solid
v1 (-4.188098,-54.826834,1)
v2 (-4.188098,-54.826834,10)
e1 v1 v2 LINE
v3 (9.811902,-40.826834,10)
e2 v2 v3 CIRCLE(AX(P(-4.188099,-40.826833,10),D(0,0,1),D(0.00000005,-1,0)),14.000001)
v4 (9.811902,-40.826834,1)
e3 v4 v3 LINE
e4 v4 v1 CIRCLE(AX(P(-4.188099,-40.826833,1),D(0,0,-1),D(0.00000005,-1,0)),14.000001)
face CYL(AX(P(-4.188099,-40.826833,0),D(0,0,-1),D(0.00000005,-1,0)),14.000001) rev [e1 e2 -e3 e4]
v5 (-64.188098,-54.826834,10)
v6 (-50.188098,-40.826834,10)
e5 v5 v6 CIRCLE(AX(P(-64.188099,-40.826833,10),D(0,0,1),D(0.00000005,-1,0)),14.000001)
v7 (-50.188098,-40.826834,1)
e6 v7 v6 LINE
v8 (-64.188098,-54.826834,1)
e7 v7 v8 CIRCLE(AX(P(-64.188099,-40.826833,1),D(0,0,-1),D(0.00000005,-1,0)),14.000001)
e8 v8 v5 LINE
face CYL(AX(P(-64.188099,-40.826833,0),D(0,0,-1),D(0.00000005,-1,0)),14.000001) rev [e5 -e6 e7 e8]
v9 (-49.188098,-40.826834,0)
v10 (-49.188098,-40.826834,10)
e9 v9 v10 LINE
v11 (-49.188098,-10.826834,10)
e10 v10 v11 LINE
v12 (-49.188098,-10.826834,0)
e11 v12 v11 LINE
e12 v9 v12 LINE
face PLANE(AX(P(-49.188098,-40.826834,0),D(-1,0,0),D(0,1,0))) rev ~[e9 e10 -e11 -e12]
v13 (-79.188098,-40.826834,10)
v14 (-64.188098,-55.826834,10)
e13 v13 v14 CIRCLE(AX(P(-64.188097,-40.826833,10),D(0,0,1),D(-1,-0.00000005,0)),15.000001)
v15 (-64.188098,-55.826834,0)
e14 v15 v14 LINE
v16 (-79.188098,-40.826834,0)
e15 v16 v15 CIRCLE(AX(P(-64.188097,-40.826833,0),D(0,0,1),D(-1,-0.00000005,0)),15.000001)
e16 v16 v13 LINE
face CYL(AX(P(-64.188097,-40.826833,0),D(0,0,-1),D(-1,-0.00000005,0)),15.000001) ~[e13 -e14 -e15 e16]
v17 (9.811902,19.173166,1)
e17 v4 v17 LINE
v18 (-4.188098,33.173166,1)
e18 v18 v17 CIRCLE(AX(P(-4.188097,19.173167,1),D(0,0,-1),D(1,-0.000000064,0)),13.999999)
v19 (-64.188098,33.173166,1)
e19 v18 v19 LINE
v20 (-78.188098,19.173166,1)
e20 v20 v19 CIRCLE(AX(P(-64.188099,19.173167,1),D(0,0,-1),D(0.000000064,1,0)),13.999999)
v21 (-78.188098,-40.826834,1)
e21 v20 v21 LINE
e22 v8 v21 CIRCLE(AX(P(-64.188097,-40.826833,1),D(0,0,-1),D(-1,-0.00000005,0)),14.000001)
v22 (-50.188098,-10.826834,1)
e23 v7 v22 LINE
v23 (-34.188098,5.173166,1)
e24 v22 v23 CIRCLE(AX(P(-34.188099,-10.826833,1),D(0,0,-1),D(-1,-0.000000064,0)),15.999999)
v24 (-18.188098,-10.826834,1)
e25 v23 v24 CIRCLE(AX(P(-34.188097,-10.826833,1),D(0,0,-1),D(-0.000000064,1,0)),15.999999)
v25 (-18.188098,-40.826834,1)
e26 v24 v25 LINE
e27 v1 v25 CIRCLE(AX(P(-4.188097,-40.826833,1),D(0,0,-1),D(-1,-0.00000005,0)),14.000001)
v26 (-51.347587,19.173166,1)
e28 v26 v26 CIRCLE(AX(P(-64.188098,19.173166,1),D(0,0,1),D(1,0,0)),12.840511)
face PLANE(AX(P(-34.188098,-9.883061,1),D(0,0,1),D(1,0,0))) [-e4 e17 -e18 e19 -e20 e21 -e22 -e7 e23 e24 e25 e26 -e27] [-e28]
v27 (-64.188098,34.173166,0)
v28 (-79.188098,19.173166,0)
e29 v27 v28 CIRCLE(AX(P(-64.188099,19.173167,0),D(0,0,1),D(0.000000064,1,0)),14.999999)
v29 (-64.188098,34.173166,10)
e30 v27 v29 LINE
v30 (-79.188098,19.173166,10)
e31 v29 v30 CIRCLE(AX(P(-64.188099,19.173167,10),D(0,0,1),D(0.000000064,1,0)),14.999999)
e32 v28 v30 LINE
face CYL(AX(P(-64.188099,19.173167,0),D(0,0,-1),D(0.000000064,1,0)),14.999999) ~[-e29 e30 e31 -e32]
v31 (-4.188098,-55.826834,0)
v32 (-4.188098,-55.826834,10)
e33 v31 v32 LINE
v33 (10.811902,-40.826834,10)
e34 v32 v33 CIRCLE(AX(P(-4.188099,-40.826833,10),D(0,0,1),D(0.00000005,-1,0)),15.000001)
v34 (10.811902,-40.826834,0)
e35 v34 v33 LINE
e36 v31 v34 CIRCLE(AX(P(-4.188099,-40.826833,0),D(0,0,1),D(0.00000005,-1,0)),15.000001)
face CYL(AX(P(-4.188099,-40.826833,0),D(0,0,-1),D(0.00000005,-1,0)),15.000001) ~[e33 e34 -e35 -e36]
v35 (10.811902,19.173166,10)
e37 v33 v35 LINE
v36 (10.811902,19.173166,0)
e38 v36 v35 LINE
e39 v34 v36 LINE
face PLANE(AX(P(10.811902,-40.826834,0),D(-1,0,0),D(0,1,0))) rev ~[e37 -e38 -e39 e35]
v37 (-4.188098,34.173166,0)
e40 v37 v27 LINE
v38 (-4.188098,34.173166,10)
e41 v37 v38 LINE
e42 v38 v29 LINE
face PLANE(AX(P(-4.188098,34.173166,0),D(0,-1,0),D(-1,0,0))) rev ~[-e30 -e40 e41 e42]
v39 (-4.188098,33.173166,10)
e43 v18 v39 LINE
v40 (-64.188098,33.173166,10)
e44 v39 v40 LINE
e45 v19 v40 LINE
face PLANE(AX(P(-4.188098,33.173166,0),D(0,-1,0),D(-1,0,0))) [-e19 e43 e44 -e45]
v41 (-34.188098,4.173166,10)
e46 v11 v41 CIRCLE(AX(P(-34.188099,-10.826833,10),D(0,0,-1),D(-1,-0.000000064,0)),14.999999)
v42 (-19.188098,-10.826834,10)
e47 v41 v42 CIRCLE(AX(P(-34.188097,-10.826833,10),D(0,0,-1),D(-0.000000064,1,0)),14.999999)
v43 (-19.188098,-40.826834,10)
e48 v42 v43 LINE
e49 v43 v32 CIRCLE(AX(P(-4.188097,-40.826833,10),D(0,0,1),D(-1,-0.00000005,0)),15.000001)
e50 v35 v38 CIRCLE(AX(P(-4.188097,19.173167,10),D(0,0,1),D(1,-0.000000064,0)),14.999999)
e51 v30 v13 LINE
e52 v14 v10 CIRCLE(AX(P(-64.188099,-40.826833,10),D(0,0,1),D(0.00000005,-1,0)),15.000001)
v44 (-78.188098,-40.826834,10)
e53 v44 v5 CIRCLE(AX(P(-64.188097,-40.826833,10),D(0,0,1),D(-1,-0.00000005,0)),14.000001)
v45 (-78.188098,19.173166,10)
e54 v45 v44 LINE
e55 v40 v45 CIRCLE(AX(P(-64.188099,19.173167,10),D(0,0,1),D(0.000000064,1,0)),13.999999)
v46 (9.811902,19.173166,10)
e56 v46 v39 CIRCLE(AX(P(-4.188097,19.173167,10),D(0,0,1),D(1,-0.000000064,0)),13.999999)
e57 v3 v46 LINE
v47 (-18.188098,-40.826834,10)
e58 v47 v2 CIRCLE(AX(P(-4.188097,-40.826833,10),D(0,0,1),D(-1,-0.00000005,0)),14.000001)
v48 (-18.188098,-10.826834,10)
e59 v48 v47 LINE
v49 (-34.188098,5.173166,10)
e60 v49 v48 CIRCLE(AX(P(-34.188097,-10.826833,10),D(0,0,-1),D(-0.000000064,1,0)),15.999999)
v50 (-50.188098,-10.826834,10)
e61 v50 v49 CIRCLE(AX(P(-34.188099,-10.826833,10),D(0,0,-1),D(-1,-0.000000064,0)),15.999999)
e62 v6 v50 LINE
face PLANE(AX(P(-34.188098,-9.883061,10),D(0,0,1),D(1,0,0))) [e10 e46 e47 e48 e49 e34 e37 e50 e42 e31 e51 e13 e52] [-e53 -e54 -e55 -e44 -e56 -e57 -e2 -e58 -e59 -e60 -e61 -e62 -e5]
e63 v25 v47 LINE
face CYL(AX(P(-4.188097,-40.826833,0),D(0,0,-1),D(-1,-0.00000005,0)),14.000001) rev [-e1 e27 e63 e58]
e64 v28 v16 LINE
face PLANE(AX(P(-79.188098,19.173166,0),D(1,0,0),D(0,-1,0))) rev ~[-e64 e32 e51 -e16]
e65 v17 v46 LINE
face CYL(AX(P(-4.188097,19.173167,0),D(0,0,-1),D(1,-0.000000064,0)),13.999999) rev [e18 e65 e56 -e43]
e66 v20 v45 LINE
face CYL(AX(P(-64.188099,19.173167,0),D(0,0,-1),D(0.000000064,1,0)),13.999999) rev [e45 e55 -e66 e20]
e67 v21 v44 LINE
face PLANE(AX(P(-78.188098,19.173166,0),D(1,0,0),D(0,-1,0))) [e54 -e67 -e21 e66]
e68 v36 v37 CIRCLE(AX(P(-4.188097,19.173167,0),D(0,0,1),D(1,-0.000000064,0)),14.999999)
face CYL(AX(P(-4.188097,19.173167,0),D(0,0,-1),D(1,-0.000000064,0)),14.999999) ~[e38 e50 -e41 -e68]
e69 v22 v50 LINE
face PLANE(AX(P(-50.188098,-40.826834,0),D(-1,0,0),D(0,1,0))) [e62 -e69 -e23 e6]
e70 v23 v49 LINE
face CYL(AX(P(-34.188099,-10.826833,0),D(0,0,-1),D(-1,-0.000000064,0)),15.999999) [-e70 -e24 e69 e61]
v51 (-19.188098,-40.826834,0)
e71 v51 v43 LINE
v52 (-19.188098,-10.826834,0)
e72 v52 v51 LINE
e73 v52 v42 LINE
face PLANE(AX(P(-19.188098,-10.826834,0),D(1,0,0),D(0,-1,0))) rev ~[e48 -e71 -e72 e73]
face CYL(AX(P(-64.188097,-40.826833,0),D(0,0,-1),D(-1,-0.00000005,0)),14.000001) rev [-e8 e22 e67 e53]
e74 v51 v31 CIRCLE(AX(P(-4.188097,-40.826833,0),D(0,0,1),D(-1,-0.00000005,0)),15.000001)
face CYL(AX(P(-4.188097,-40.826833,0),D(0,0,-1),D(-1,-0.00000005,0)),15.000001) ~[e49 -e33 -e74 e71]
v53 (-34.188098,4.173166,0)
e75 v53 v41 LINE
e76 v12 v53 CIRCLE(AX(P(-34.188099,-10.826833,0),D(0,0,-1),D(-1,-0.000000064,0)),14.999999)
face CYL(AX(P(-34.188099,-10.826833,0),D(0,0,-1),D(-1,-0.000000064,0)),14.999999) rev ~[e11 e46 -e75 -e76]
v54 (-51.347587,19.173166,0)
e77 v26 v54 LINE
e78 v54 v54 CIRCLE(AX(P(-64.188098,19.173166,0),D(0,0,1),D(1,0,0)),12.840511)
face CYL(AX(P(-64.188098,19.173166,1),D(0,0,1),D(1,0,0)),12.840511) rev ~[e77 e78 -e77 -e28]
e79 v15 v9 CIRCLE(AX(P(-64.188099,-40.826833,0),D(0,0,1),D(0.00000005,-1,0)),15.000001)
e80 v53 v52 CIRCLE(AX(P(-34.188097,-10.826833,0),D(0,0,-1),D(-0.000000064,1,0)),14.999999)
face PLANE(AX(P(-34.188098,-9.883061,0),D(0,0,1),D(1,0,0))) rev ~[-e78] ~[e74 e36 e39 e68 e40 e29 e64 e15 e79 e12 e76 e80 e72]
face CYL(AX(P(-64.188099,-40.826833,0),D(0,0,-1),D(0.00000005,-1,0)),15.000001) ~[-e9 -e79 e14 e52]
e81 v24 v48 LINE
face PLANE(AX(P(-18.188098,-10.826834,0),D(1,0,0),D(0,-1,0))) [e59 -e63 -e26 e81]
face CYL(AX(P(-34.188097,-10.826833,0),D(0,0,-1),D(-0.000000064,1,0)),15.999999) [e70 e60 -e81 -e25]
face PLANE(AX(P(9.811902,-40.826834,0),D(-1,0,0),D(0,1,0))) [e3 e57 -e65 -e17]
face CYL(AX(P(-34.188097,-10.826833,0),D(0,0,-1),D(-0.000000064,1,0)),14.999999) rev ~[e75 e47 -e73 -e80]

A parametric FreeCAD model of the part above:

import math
import FreeCAD as App
import Part
import Sketcher

V = App.Vector


def faces_at(feature, points):
    """Names of the faces that lie closest to the given points."""
    faces = feature.Shape.Faces
    near = lambda p: min(range(len(faces)), key=lambda i: faces[i].distToShape(Part.Vertex(*p))[0])
    return sorted({f"Face{near(p) + 1}" for p in points})

doc = App.newDocument("Part")
body = doc.addObject("PartDesign::Body", "Body")

# Sketch on XY plane
sketch1 = doc.addObject("Sketcher::SketchObject", "Sketch")
body.addObject(sketch1)
sketch1.AttachmentSupport = (doc.XY_Plane, [""])
sketch1.MapMode = "FlatFace"
sketch1.addGeometry(Part.LineSegment(V(-4, 34, 0), V(-64, 34, 0)), False)
sketch1.addGeometry(Part.ArcOfCircle(Part.Circle(V(-64, 19, 0), V(0, 0, 1), 15), math.radians(90), math.radians(180)), False)
sketch1.addGeometry(Part.LineSegment(V(-79, 19, 0), V(-79, -41, 0)), False)
sketch1.addGeometry(Part.ArcOfCircle(Part.Circle(V(-64, -41, 0), V(0, 0, 1), 15), math.radians(-180), math.radians(-90)), False)
sketch1.addGeometry(Part.ArcOfCircle(Part.Circle(V(-64, -41, 0), V(0, 0, 1), 15), math.radians(-90), math.radians(0)), False)
sketch1.addGeometry(Part.LineSegment(V(-49, -41, 0), V(-49, -11, 0)), False)
sketch1.addGeometry(Part.ArcOfCircle(Part.Circle(V(-34, -11, 0), V(0, 0, 1), 15), math.radians(90), math.radians(180)), False)
sketch1.addGeometry(Part.ArcOfCircle(Part.Circle(V(-34, -11, 0), V(0, 0, 1), 15), math.radians(0), math.radians(90)), False)
sketch1.addGeometry(Part.LineSegment(V(-19, -11, 0), V(-19, -41, 0)), False)
sketch1.addGeometry(Part.ArcOfCircle(Part.Circle(V(-4, -41, 0), V(0, 0, 1), 15), math.radians(-180), math.radians(-90)), False)
sketch1.addGeometry(Part.ArcOfCircle(Part.Circle(V(-4, -41, 0), V(0, 0, 1), 15), math.radians(-90), math.radians(0)), False)
sketch1.addGeometry(Part.LineSegment(V(11, -41, 0), V(11, 19, 0)), False)
sketch1.addGeometry(Part.ArcOfCircle(Part.Circle(V(-4, 19, 0), V(0, 0, 1), 15), math.radians(0), math.radians(90)), False)
sketch1.addConstraint(Sketcher.Constraint("Tangent", 0, 2, 1, 1))
sketch1.addConstraint(Sketcher.Constraint("Tangent", 1, 2, 2, 1))
sketch1.addConstraint(Sketcher.Constraint("Tangent", 2, 2, 3, 1))
sketch1.addConstraint(Sketcher.Constraint("Tangent", 3, 2, 4, 1))
sketch1.addConstraint(Sketcher.Constraint("Tangent", 4, 2, 5, 1))
sketch1.addConstraint(Sketcher.Constraint("Tangent", 5, 2, 6, 2))
sketch1.addConstraint(Sketcher.Constraint("Tangent", 6, 1, 7, 2))
sketch1.addConstraint(Sketcher.Constraint("Tangent", 7, 1, 8, 1))
sketch1.addConstraint(Sketcher.Constraint("Tangent", 8, 2, 9, 1))
sketch1.addConstraint(Sketcher.Constraint("Tangent", 9, 2, 10, 1))
sketch1.addConstraint(Sketcher.Constraint("Tangent", 10, 2, 11, 1))
sketch1.addConstraint(Sketcher.Constraint("Tangent", 11, 2, 12, 1))
sketch1.addConstraint(Sketcher.Constraint("Tangent", 12, 2, 0, 1))
sketch1.addConstraint(Sketcher.Constraint("Horizontal", 0))
sketch1.addConstraint(Sketcher.Constraint("Vertical", 2))
sketch1.addConstraint(Sketcher.Constraint("Vertical", 5))
sketch1.addConstraint(Sketcher.Constraint("Vertical", 8))
sketch1.addConstraint(Sketcher.Constraint("Vertical", 11))
sketch1.addConstraint(Sketcher.Constraint("Equal", 1, 3))
sketch1.addConstraint(Sketcher.Constraint("Equal", 3, 4))
sketch1.addConstraint(Sketcher.Constraint("Equal", 4, 6))
sketch1.addConstraint(Sketcher.Constraint("Equal", 6, 7))
sketch1.addConstraint(Sketcher.Constraint("Equal", 7, 9))
sketch1.addConstraint(Sketcher.Constraint("Equal", 9, 10))
sketch1.addConstraint(Sketcher.Constraint("Equal", 10, 12))
sketch1.addConstraint(Sketcher.Constraint("Horizontal", 4, 3, 9, 3))
sketch1.addConstraint(Sketcher.Constraint("Vertical", 0, 2, 3, 2))
sketch1.addConstraint(Sketcher.Constraint("Vertical", 7, 3, 6, 1))
sketch1.addConstraint(Sketcher.Constraint("Vertical", 12, 3, 9, 2))
sketch1.addConstraint(Sketcher.Constraint("Equal", 0, 2))
sketch1.addConstraint(Sketcher.Constraint("Radius", 1, 14.999999))
sketch1.addConstraint(Sketcher.Constraint("DistanceY", 5, 1, 5, 2, 30.0))
sketch1.addConstraint(Sketcher.Constraint("DistanceX", 1, 3, -1, 1, 64.188099))
sketch1.addConstraint(Sketcher.Constraint("DistanceY", -1, 1, 1, 3, 19.173167))
pad1 = doc.addObject("PartDesign::Pad", "Pad")
body.addObject(pad1)
pad1.Profile = sketch1
pad1.Length = 10
doc.recompute()

thickness = doc.addObject("PartDesign::Thickness", "Thickness")
body.addObject(thickness)
thickness.Base = (pad1, faces_at(pad1, [(-52.188, -28.827, 10)]))
thickness.Value = 1
thickness.Reversed = True
thickness.Join = "Arc"

# Sketch on XY plane
sketch2 = doc.addObject("Sketcher::SketchObject", "Sketch001")
body.addObject(sketch2)
sketch2.AttachmentSupport = (doc.XY_Plane, [""])
sketch2.MapMode = "FlatFace"
sketch2.AttachmentOffset = App.Placement(V(0, 0, 1), App.Rotation())
sketch2.addGeometry(Part.Circle(V(-64, 19, 0), V(0, 0, 1), 13), False)
sketch2.addConstraint(Sketcher.Constraint("Diameter", 0, 25.681022))
sketch2.addConstraint(Sketcher.Constraint("DistanceX", 0, 3, -1, 1, 64.188098))
sketch2.addConstraint(Sketcher.Constraint("DistanceY", -1, 1, 0, 3, 19.173166))
pocket1 = doc.addObject("PartDesign::Pocket", "Pocket")
body.addObject(pocket1)
pocket1.Profile = sketch2
pocket1.Length = 25

doc.recompute()
